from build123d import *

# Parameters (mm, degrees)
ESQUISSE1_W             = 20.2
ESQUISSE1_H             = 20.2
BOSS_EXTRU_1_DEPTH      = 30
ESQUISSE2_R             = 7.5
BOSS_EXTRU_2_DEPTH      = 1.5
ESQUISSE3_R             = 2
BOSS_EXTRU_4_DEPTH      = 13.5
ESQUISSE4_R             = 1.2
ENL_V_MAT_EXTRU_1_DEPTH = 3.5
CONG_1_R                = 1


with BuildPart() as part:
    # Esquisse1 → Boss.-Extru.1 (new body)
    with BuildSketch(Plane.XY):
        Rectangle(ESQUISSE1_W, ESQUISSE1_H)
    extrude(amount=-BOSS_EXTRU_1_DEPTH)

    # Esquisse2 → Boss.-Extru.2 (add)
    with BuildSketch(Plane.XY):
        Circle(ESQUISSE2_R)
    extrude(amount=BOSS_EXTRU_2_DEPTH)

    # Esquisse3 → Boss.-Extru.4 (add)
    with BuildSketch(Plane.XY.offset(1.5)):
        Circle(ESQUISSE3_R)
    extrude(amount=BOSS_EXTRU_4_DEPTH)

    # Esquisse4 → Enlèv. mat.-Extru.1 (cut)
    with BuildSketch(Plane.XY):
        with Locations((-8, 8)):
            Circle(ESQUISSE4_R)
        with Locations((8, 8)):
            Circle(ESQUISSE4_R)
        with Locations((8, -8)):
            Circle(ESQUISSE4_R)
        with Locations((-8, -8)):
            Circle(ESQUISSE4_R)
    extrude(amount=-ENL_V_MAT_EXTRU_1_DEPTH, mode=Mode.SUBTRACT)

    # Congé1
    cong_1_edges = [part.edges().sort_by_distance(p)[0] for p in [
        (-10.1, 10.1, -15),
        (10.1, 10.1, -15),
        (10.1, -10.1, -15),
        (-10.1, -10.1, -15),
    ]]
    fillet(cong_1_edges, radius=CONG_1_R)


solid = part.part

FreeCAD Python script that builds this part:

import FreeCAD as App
import Part
import Sketcher
from FreeCAD import Vector
Q = App.Units.Quantity


def edges_at(feature, points):
    """Names of the edges that pass closest to the given points."""
    edges = feature.Shape.Edges
    near = lambda p: min(range(len(edges)), key=lambda i: edges[i].distToShape(Part.Vertex(*p))[0])
    return sorted({f"Edge{near(p) + 1}" for p in points})

doc = App.newDocument("Part")
body = doc.addObject("PartDesign::Body", "Body")

sketch1 = doc.addObject("Sketcher::SketchObject", "Sketch")
body.addObject(sketch1)
sketch1.AttachmentSupport = (doc.XY_Plane, [""])
sketch1.MapMode = "FlatFace"
sketch1.addGeometry([
    Part.LineSegment(Vector(-10, 10, 0), Vector(-10, -10, 0)),
    Part.LineSegment(Vector(-10, -10, 0), Vector(10, -10, 0)),
    Part.LineSegment(Vector(10, -10, 0), Vector(10, 10, 0)),
    Part.LineSegment(Vector(10, 10, 0), Vector(-10, 10, 0)),
], False)
sketch1.addConstraint([
    Sketcher.Constraint("Coincident", 0, 2, 1, 1),
    Sketcher.Constraint("Coincident", 1, 2, 2, 1),
    Sketcher.Constraint("Coincident", 2, 2, 3, 1),
    Sketcher.Constraint("Coincident", 3, 2, 0, 1),
    Sketcher.Constraint("Vertical", 0),
    Sketcher.Constraint("Horizontal", 1),
    Sketcher.Constraint("Vertical", 2),
    Sketcher.Constraint("Horizontal", 3),
    Sketcher.Constraint("Symmetric", 0, 2, 2, 2, -1, 1),
    Sketcher.Constraint("Equal", 3, 0),
    Sketcher.Constraint("DistanceX", 1, 1, 1, 2, Q("20.2 mm")),
])
pad1 = doc.addObject("PartDesign::Pad", "Pad")
body.addObject(pad1)
pad1.Profile = sketch1
pad1.Length = 30
pad1.Reversed = True

sketch2 = doc.addObject("Sketcher::SketchObject", "Sketch001")
body.addObject(sketch2)
sketch2.AttachmentSupport = (doc.XY_Plane, [""])
sketch2.MapMode = "FlatFace"
sketch2.addGeometry(Part.Circle(Vector(0, 0, 0), Vector(0, 0, 1), 8), False)
sketch2.addConstraint([
    Sketcher.Constraint("Coincident", 0, 3, -1, 1),
    Sketcher.Constraint("Diameter", 0, Q("15 mm")),
])
pad2 = doc.addObject("PartDesign::Pad", "Pad001")
body.addObject(pad2)
pad2.Profile = sketch2
pad2.Length = 1.5

sketch3 = doc.addObject("Sketcher::SketchObject", "Sketch002")
body.addObject(sketch3)
sketch3.AttachmentSupport = (doc.XY_Plane, [""])
sketch3.MapMode = "FlatFace"
sketch3.AttachmentOffset = App.Placement(Vector(0, 0, 1.5), App.Rotation())
sketch3.addGeometry(Part.Circle(Vector(0, 0, 0), Vector(0, 0, 1), 2), False)
sketch3.addConstraint([
    Sketcher.Constraint("Coincident", 0, 3, -1, 1),
    Sketcher.Constraint("Diameter", 0, Q("4 mm")),
])
pad3 = doc.addObject("PartDesign::Pad", "Pad002")
body.addObject(pad3)
pad3.Profile = sketch3
pad3.Length = 13.5

sketch4 = doc.addObject("Sketcher::SketchObject", "Sketch003")
body.addObject(sketch4)
sketch4.AttachmentSupport = (doc.XY_Plane, [""])
sketch4.MapMode = "FlatFace"
sketch4.addGeometry([
    Part.Circle(Vector(-8, 8, 0), Vector(0, 0, 1), 1.2),
    Part.Circle(Vector(8, 8, 0), Vector(0, 0, 1), 1.2),
    Part.Circle(Vector(8, -8, 0), Vector(0, 0, 1), 1.2),
    Part.Circle(Vector(-8, -8, 0), Vector(0, 0, 1), 1.2),
], False)
sketch4.addConstraint([
    Sketcher.Constraint("Equal", 0, 1),
    Sketcher.Constraint("Equal", 1, 2),
    Sketcher.Constraint("Equal", 2, 3),
    Sketcher.Constraint("Symmetric", 0, 3, 2, 3, -1, 1),
    Sketcher.Constraint("Symmetric", 1, 3, 3, 3, -1, 1),
    Sketcher.Constraint("Symmetric", 0, 3, 1, 3, -2),
    Sketcher.Constraint("Diameter", 0, Q("2.4 mm")),
    Sketcher.Constraint("DistanceX", 0, 3, -1, 1, Q("8 mm")),
    Sketcher.Constraint("DistanceY", -1, 1, 0, 3, Q("8 mm")),
])
pocket1 = doc.addObject("PartDesign::Pocket", "Pocket")
body.addObject(pocket1)
pocket1.Profile = sketch4
pocket1.Length = 3.5
doc.recompute()

fillet = doc.addObject("PartDesign::Fillet", "Fillet")
body.addObject(fillet)
fillet.Base = (pocket1, edges_at(pocket1, [
    (-10.1, 10.1, -15),
    (10.1, 10.1, -15),
    (10.1, -10.1, -15),
    (-10.1, -10.1, -15),
]))
fillet.Radius = 1

doc.recompute()
